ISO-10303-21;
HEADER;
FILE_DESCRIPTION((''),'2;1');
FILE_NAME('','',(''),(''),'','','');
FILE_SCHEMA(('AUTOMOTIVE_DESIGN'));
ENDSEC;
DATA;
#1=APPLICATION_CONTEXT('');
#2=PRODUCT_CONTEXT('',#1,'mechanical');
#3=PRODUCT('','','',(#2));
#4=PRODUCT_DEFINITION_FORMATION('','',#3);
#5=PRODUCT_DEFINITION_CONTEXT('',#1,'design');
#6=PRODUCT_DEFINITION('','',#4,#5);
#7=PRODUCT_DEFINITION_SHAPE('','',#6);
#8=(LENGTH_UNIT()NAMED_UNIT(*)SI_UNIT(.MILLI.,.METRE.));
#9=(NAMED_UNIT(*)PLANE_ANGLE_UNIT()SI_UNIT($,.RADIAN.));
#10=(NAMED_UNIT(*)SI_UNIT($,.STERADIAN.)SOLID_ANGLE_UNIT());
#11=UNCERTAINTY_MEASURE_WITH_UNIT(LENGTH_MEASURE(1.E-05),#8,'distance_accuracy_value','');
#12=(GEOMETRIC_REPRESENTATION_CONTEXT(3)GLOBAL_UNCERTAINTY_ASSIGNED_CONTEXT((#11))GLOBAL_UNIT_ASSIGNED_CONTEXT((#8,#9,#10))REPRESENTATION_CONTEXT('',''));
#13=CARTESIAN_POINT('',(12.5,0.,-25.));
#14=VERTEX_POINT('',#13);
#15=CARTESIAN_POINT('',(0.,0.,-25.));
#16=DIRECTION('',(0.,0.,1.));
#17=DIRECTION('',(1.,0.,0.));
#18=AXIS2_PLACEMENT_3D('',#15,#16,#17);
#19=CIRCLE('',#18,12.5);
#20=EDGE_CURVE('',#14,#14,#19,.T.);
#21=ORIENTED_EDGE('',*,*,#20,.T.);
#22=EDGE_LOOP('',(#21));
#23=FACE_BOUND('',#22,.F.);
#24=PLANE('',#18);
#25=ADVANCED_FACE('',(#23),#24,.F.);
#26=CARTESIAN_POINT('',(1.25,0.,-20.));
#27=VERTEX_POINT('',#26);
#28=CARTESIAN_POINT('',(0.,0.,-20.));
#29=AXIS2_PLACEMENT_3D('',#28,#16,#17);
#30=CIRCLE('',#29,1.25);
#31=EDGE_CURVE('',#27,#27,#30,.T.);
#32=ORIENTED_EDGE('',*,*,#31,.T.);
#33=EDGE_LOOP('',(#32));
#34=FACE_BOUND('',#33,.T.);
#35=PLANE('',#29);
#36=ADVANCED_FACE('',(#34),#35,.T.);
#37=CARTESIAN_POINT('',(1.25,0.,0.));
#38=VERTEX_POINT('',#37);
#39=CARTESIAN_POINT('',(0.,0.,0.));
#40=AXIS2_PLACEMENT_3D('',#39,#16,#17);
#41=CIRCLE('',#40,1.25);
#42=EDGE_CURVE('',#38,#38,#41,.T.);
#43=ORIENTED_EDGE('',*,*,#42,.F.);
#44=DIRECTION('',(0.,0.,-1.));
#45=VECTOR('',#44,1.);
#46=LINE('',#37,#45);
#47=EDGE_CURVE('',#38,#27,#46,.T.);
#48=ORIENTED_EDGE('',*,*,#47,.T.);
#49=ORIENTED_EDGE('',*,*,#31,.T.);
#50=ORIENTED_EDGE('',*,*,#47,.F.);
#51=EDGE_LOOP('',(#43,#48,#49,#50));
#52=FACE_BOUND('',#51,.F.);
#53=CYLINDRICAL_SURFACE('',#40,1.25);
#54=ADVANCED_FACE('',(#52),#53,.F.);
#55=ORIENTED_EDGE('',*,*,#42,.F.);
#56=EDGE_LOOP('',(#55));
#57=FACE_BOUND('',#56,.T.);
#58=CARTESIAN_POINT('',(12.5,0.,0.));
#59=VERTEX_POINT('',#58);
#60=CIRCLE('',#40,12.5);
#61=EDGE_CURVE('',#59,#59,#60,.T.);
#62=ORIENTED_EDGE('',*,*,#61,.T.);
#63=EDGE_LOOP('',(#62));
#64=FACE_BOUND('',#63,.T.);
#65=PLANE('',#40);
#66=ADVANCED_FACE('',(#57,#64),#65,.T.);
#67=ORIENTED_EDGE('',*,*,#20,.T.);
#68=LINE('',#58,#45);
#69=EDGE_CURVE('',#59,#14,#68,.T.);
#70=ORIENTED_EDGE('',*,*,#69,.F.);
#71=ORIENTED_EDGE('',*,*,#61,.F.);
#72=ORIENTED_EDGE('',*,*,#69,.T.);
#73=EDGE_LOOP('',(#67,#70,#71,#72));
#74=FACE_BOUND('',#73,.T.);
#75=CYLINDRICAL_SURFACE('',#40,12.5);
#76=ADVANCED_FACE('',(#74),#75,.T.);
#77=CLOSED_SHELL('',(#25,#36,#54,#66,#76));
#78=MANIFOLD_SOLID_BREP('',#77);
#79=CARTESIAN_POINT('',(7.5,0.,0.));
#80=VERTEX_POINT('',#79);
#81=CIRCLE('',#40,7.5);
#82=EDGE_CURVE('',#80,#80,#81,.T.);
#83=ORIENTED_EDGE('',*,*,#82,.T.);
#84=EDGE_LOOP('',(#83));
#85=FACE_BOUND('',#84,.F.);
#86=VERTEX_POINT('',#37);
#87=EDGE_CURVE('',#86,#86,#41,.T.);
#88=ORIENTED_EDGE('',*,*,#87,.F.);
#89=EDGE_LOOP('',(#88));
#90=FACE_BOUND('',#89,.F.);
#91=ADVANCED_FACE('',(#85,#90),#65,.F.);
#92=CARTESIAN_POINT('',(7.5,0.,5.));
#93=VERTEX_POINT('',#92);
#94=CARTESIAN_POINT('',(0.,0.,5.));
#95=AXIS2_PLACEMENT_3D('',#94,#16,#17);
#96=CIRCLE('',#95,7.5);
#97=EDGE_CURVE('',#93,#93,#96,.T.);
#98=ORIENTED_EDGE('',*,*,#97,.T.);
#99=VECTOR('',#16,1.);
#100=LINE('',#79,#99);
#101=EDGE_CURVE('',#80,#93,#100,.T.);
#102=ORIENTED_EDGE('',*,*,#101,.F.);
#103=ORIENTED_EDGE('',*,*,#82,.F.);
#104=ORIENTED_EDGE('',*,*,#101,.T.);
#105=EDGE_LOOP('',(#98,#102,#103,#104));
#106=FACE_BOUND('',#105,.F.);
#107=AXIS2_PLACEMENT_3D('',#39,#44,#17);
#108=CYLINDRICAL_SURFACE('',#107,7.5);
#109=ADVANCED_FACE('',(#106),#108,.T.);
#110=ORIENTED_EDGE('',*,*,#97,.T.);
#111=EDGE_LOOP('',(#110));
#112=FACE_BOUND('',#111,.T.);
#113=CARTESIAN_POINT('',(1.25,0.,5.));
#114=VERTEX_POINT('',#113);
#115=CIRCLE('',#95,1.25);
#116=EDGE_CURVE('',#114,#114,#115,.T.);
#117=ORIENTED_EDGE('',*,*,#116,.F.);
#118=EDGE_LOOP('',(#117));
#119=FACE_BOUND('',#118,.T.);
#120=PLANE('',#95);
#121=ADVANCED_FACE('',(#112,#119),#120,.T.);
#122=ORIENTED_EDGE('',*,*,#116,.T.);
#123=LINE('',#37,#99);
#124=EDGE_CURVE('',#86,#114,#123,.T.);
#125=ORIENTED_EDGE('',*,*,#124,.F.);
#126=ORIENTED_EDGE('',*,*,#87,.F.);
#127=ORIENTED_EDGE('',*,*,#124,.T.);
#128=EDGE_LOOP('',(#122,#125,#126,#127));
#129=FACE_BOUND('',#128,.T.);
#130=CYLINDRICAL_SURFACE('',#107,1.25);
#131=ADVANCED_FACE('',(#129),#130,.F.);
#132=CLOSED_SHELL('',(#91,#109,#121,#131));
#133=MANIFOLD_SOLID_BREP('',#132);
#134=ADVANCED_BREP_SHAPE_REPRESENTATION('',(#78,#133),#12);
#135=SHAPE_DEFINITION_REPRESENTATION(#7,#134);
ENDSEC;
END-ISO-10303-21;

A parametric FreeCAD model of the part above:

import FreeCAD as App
import Part
import Sketcher
from FreeCAD import Vector

doc = App.newDocument("Part")
body = doc.addObject("PartDesign::Body", "Body")

# Sketch on XY plane
sketch1 = body.newObject("Sketcher::SketchObject", "Sketch")
sketch1.AttachmentSupport = (doc.getObject("XY_Plane"), [""])
sketch1.MapMode = "FlatFace"
sketch1.addGeometry(Part.Circle(Vector(0, 0, 0), Vector(0, 0, 1), 12), False)
sketch1.addConstraint(Sketcher.Constraint("Coincident", 0, 3, -1, 1))
sketch1.addConstraint(Sketcher.Constraint("Diameter", 0, 25.0))
pad1 = body.newObject("PartDesign::Pad", "Pad")
pad1.Profile = sketch1
pad1.Length = 25
pad1.Reversed = True

# Sketch on XY plane
sketch2 = body.newObject("Sketcher::SketchObject", "Sketch001")
sketch2.AttachmentSupport = (doc.getObject("XY_Plane"), [""])
sketch2.MapMode = "FlatFace"
sketch2.addGeometry(Part.Circle(Vector(0, 0, 0), Vector(0, 0, 1), 1.2), False)
sketch2.addConstraint(Sketcher.Constraint("Coincident", 0, 3, -1, 1))
sketch2.addConstraint(Sketcher.Constraint("Diameter", 0, 2.5))
pocket1 = body.newObject("PartDesign::Pocket", "Pocket")
pocket1.Profile = sketch2
pocket1.Length = 20
body2 = doc.addObject("PartDesign::Body", "Body001")

# Sketch on XY plane
sketch3 = body2.newObject("Sketcher::SketchObject", "Sketch002")
sketch3.AttachmentSupport = (doc.getObject("XY_Plane001"), [""])
sketch3.MapMode = "FlatFace"
sketch3.addGeometry(Part.Circle(Vector(0, 0, 0), Vector(0, 0, 1), 7.5), False)
sketch3.addGeometry(Part.Circle(Vector(0, 0, 0), Vector(0, 0, 1), 1.2), False)
sketch3.addConstraint(Sketcher.Constraint("Coincident", 0, 3, -1, 1))
sketch3.addConstraint(Sketcher.Constraint("Coincident", 1, 3, -1, 1))
sketch3.addConstraint(Sketcher.Constraint("Diameter", 0, 15.0))
sketch3.addConstraint(Sketcher.Constraint("Diameter", 1, 2.5))
pad2 = body2.newObject("PartDesign::Pad", "Pad001")
pad2.Profile = sketch3
pad2.Length = 5

doc.recompute()
